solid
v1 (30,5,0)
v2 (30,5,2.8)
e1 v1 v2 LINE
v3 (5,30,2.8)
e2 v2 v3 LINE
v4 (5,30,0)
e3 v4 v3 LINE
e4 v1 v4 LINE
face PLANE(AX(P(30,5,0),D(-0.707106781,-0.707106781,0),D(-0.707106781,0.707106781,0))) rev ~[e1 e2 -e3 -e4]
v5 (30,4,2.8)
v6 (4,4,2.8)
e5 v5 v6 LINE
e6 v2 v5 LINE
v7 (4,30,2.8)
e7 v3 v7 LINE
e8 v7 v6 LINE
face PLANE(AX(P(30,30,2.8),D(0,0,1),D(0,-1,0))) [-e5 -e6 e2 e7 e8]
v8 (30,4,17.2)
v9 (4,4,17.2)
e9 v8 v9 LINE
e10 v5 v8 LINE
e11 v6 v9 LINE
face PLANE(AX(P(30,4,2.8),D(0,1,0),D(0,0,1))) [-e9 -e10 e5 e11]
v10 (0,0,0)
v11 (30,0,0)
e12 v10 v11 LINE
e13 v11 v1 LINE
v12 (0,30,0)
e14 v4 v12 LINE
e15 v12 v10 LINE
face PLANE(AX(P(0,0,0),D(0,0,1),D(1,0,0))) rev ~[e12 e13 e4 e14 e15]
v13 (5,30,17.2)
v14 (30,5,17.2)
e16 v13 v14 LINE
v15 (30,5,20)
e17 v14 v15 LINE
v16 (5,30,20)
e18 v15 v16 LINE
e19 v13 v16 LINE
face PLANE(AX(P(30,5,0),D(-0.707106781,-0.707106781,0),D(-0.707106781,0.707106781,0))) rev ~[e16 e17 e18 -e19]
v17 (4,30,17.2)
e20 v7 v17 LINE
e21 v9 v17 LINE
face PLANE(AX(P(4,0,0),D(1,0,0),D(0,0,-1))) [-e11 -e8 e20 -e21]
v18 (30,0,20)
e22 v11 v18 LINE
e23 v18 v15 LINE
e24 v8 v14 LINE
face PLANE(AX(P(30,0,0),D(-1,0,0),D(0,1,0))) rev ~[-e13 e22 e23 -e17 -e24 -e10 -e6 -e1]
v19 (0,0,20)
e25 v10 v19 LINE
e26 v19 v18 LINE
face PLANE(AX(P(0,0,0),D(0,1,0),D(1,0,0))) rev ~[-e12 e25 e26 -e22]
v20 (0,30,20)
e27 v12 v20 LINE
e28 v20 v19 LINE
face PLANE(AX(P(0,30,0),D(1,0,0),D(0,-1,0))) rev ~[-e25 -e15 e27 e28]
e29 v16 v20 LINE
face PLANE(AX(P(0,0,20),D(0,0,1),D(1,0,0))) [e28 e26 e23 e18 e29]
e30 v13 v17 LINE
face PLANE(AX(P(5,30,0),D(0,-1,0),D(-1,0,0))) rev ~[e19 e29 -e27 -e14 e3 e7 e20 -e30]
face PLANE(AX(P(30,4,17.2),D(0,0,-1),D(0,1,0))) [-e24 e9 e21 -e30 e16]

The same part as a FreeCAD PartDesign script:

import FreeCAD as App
import Part
import Sketcher
Q = App.Units.Quantity

doc = App.newDocument("Part")
body = doc.addObject("PartDesign::Body", "Body")

# Sketch on XY plane
sketch1 = doc.addObject("Sketcher::SketchObject", "Sketch")
body.addObject(sketch1)
sketch1.AttachmentSupport = (doc.XY_Plane, [""])
sketch1.MapMode = "FlatFace"
sketch1.addGeometry(Part.LineSegment(App.Vector(0, 30, 0), App.Vector(0, 0, 0)), False)
sketch1.addGeometry(Part.LineSegment(App.Vector(0, 0, 0), App.Vector(30, 0, 0)), False)
sketch1.addGeometry(Part.LineSegment(App.Vector(30, 0, 0), App.Vector(30, 5, 0)), False)
sketch1.addGeometry(Part.LineSegment(App.Vector(30, 5, 0), App.Vector(5, 30, 0)), False)
sketch1.addGeometry(Part.LineSegment(App.Vector(5, 30, 0), App.Vector(0, 30, 0)), False)
sketch1.addConstraint(Sketcher.Constraint("Coincident", 0, 2, 1, 1))
sketch1.addConstraint(Sketcher.Constraint("Coincident", 1, 2, 2, 1))
sketch1.addConstraint(Sketcher.Constraint("Coincident", 2, 2, 3, 1))
sketch1.addConstraint(Sketcher.Constraint("Coincident", 3, 2, 4, 1))
sketch1.addConstraint(Sketcher.Constraint("Coincident", 4, 2, 0, 1))
sketch1.addConstraint(Sketcher.Constraint("Vertical", 0))
sketch1.addConstraint(Sketcher.Constraint("Horizontal", 1))
sketch1.addConstraint(Sketcher.Constraint("Vertical", 2))
sketch1.addConstraint(Sketcher.Constraint("Horizontal", 4))
sketch1.addConstraint(Sketcher.Constraint("Coincident", 0, 2, -1, 1))
sketch1.addConstraint(Sketcher.Constraint("Equal", 1, 0))
sketch1.addConstraint(Sketcher.Constraint("Equal", 4, 2))
sketch1.addConstraint(Sketcher.Constraint("DistanceX", 1, 1, 1, 2, Q("30 mm")))
sketch1.addConstraint(Sketcher.Constraint("DistanceX", 4, 2, 4, 1, Q("5 mm")))
pad1 = doc.addObject("PartDesign::Pad", "Pad")
body.addObject(pad1)
pad1.Profile = sketch1
pad1.Length = 20

# Sketch on YZ plane
sketch2 = doc.addObject("Sketcher::SketchObject", "Sketch001")
body.addObject(sketch2)
sketch2.AttachmentSupport = (doc.YZ_Plane, [""])
sketch2.MapMode = "FlatFace"
sketch2.AttachmentOffset = App.Placement(App.Vector(0, 0, 30), App.Rotation())
sketch2.addGeometry(Part.LineSegment(App.Vector(4, 3, 0), App.Vector(30, 3, 0)), False)
sketch2.addGeometry(Part.LineSegment(App.Vector(30, 3, 0), App.Vector(30, 17, 0)), False)
sketch2.addGeometry(Part.LineSegment(App.Vector(30, 17, 0), App.Vector(4, 17, 0)), False)
sketch2.addGeometry(Part.LineSegment(App.Vector(4, 17, 0), App.Vector(4, 3, 0)), False)
sketch2.addConstraint(Sketcher.Constraint("Coincident", 0, 2, 1, 1))
sketch2.addConstraint(Sketcher.Constraint("Coincident", 1, 2, 2, 1))
sketch2.addConstraint(Sketcher.Constraint("Coincident", 2, 2, 3, 1))
sketch2.addConstraint(Sketcher.Constraint("Coincident", 3, 2, 0, 1))
sketch2.addConstraint(Sketcher.Constraint("Horizontal", 0))
sketch2.addConstraint(Sketcher.Constraint("Vertical", 1))
sketch2.addConstraint(Sketcher.Constraint("Horizontal", 2))
sketch2.addConstraint(Sketcher.Constraint("Vertical", 3))
sketch2.addConstraint(Sketcher.Constraint("DistanceX", -1, 1, 2, 2, Q("4 mm")))
sketch2.addConstraint(Sketcher.Constraint("DistanceY", -1, 1, 0, 2, Q("2.8 mm")))
sketch2.addConstraint(Sketcher.Constraint("DistanceX", 0, 1, 0, 2, Q("26 mm")))
sketch2.addConstraint(Sketcher.Constraint("DistanceY", 1, 1, 1, 2, Q("14.4 mm")))
pocket1 = doc.addObject("PartDesign::Pocket", "Pocket")
body.addObject(pocket1)
pocket1.Profile = sketch2
pocket1.Length = 26

doc.recompute()
